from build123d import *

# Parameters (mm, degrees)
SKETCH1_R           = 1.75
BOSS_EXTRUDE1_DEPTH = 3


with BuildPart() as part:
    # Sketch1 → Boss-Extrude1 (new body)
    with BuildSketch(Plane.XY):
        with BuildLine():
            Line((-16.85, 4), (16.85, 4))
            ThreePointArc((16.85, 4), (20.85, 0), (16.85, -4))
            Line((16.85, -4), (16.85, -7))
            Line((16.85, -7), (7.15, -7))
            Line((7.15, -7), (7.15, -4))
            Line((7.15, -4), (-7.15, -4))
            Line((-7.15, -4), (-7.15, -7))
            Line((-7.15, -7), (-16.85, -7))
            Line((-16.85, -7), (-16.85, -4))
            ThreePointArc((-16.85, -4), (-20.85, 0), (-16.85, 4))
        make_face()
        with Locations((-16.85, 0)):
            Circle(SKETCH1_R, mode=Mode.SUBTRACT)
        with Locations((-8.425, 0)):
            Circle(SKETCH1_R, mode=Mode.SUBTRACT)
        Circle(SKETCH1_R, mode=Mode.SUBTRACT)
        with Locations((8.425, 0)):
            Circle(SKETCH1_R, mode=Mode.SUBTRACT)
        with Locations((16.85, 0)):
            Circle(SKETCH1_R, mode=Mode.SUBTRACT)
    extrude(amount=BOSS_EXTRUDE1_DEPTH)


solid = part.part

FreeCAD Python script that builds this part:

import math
import FreeCAD as App
import Part
import Sketcher
Q = App.Units.Quantity

doc = App.newDocument("Part")
body = doc.addObject("PartDesign::Body", "Body")

# Sketch on XY plane
sketch1 = doc.addObject("Sketcher::SketchObject", "Sketch")
body.addObject(sketch1)
sketch1.AttachmentSupport = (doc.XY_Plane, [""])
sketch1.MapMode = "FlatFace"
sketch1.addGeometry(Part.LineSegment(App.Vector(16.9, 4, 0), App.Vector(-16.9, 4, 0)), False)
sketch1.addGeometry(Part.ArcOfCircle(Part.Circle(App.Vector(-16.9, 0, 0), App.Vector(0, 0, 1), 4), math.radians(90), math.radians(270)), False)
sketch1.addGeometry(Part.LineSegment(App.Vector(-16.9, -4, 0), App.Vector(-16.9, -7, 0)), False)
sketch1.addGeometry(Part.LineSegment(App.Vector(-16.9, -7, 0), App.Vector(-7.2, -7, 0)), False)
sketch1.addGeometry(Part.LineSegment(App.Vector(-7.2, -7, 0), App.Vector(-7.2, -4, 0)), False)
sketch1.addGeometry(Part.LineSegment(App.Vector(-7.2, -4, 0), App.Vector(7.2, -4, 0)), False)
sketch1.addGeometry(Part.LineSegment(App.Vector(7.2, -4, 0), App.Vector(7.2, -7, 0)), False)
sketch1.addGeometry(Part.LineSegment(App.Vector(7.2, -7, 0), App.Vector(16.9, -7, 0)), False)
sketch1.addGeometry(Part.LineSegment(App.Vector(16.9, -7, 0), App.Vector(16.9, -4, 0)), False)
sketch1.addGeometry(Part.ArcOfCircle(Part.Circle(App.Vector(16.9, 0, 0), App.Vector(0, 0, 1), 4), math.radians(-90), math.radians(90)), False)
sketch1.addGeometry(Part.Circle(App.Vector(16.9, 0, 0), App.Vector(0, 0, 1), 1.8), False)
sketch1.addGeometry(Part.Circle(App.Vector(8.4, 0, 0), App.Vector(0, 0, 1), 1.8), False)
sketch1.addGeometry(Part.Circle(App.Vector(0, 0, 0), App.Vector(0, 0, 1), 1.8), False)
sketch1.addGeometry(Part.Circle(App.Vector(-8.4, 0, 0), App.Vector(0, 0, 1), 1.8), False)
sketch1.addGeometry(Part.Circle(App.Vector(-16.9, 0, 0), App.Vector(0, 0, 1), 1.8), False)
sketch1.addConstraint(Sketcher.Constraint("Tangent", 0, 2, 1, 1))
sketch1.addConstraint(Sketcher.Constraint("Coincident", 1, 2, 2, 1))
sketch1.addConstraint(Sketcher.Constraint("Coincident", 2, 2, 3, 1))
sketch1.addConstraint(Sketcher.Constraint("Coincident", 3, 2, 4, 1))
sketch1.addConstraint(Sketcher.Constraint("Coincident", 4, 2, 5, 1))
sketch1.addConstraint(Sketcher.Constraint("Coincident", 5, 2, 6, 1))
sketch1.addConstraint(Sketcher.Constraint("Coincident", 6, 2, 7, 1))
sketch1.addConstraint(Sketcher.Constraint("Coincident", 7, 2, 8, 1))
sketch1.addConstraint(Sketcher.Constraint("Coincident", 8, 2, 9, 1))
sketch1.addConstraint(Sketcher.Constraint("Tangent", 9, 2, 0, 1))
sketch1.addConstraint(Sketcher.Constraint("Horizontal", 0))
sketch1.addConstraint(Sketcher.Constraint("Vertical", 2))
sketch1.addConstraint(Sketcher.Constraint("Horizontal", 3))
sketch1.addConstraint(Sketcher.Constraint("Vertical", 4))
sketch1.addConstraint(Sketcher.Constraint("Horizontal", 5))
sketch1.addConstraint(Sketcher.Constraint("Vertical", 6))
sketch1.addConstraint(Sketcher.Constraint("Horizontal", 7))
sketch1.addConstraint(Sketcher.Constraint("Vertical", 8))
sketch1.addConstraint(Sketcher.Constraint("Coincident", 12, 3, -1, 1))
sketch1.addConstraint(Sketcher.Constraint("Coincident", 10, 3, 9, 3))
sketch1.addConstraint(Sketcher.Constraint("Coincident", 14, 3, 1, 3))
sketch1.addConstraint(Sketcher.Constraint("Equal", 1, 9))
sketch1.addConstraint(Sketcher.Constraint("Equal", 10, 11))
sketch1.addConstraint(Sketcher.Constraint("Equal", 11, 12))
sketch1.addConstraint(Sketcher.Constraint("Equal", 12, 13))
sketch1.addConstraint(Sketcher.Constraint("Equal", 13, 14))
sketch1.addConstraint(Sketcher.Constraint("Symmetric", 1, 3, 9, 3, -1, 1))
sketch1.addConstraint(Sketcher.Constraint("Symmetric", 11, 3, 13, 3, -1, 1))
sketch1.addConstraint(Sketcher.Constraint("Symmetric", 3, 2, 6, 2, -2))
sketch1.addConstraint(Sketcher.Constraint("PointOnObject", 11, 3, -1))
sketch1.addConstraint(Sketcher.Constraint("Horizontal", 1, 2, 4, 2))
sketch1.addConstraint(Sketcher.Constraint("Vertical", 0, 2, 1, 2))
sketch1.addConstraint(Sketcher.Constraint("Vertical", 10, 3, 7, 2))
sketch1.addConstraint(Sketcher.Constraint("Radius", 1, Q("4 mm")))
sketch1.addConstraint(Sketcher.Constraint("Diameter", 10, Q("3.5 mm")))
sketch1.addConstraint(Sketcher.Constraint("DistanceY", 2, 2, 2, 1, Q("3 mm")))
sketch1.addConstraint(Sketcher.Constraint("DistanceX", 0, 2, 0, 1, Q("33.7 mm")))
sketch1.addConstraint(Sketcher.Constraint("DistanceX", 3, 1, 3, 2, Q("9.7 mm")))
sketch1.addConstraint(Sketcher.Constraint("DistanceX", 13, 3, 11, 3, Q("16.85 mm")))
pad1 = doc.addObject("PartDesign::Pad", "Pad")
body.addObject(pad1)
pad1.Profile = sketch1
pad1.Length = 3

doc.recompute()
